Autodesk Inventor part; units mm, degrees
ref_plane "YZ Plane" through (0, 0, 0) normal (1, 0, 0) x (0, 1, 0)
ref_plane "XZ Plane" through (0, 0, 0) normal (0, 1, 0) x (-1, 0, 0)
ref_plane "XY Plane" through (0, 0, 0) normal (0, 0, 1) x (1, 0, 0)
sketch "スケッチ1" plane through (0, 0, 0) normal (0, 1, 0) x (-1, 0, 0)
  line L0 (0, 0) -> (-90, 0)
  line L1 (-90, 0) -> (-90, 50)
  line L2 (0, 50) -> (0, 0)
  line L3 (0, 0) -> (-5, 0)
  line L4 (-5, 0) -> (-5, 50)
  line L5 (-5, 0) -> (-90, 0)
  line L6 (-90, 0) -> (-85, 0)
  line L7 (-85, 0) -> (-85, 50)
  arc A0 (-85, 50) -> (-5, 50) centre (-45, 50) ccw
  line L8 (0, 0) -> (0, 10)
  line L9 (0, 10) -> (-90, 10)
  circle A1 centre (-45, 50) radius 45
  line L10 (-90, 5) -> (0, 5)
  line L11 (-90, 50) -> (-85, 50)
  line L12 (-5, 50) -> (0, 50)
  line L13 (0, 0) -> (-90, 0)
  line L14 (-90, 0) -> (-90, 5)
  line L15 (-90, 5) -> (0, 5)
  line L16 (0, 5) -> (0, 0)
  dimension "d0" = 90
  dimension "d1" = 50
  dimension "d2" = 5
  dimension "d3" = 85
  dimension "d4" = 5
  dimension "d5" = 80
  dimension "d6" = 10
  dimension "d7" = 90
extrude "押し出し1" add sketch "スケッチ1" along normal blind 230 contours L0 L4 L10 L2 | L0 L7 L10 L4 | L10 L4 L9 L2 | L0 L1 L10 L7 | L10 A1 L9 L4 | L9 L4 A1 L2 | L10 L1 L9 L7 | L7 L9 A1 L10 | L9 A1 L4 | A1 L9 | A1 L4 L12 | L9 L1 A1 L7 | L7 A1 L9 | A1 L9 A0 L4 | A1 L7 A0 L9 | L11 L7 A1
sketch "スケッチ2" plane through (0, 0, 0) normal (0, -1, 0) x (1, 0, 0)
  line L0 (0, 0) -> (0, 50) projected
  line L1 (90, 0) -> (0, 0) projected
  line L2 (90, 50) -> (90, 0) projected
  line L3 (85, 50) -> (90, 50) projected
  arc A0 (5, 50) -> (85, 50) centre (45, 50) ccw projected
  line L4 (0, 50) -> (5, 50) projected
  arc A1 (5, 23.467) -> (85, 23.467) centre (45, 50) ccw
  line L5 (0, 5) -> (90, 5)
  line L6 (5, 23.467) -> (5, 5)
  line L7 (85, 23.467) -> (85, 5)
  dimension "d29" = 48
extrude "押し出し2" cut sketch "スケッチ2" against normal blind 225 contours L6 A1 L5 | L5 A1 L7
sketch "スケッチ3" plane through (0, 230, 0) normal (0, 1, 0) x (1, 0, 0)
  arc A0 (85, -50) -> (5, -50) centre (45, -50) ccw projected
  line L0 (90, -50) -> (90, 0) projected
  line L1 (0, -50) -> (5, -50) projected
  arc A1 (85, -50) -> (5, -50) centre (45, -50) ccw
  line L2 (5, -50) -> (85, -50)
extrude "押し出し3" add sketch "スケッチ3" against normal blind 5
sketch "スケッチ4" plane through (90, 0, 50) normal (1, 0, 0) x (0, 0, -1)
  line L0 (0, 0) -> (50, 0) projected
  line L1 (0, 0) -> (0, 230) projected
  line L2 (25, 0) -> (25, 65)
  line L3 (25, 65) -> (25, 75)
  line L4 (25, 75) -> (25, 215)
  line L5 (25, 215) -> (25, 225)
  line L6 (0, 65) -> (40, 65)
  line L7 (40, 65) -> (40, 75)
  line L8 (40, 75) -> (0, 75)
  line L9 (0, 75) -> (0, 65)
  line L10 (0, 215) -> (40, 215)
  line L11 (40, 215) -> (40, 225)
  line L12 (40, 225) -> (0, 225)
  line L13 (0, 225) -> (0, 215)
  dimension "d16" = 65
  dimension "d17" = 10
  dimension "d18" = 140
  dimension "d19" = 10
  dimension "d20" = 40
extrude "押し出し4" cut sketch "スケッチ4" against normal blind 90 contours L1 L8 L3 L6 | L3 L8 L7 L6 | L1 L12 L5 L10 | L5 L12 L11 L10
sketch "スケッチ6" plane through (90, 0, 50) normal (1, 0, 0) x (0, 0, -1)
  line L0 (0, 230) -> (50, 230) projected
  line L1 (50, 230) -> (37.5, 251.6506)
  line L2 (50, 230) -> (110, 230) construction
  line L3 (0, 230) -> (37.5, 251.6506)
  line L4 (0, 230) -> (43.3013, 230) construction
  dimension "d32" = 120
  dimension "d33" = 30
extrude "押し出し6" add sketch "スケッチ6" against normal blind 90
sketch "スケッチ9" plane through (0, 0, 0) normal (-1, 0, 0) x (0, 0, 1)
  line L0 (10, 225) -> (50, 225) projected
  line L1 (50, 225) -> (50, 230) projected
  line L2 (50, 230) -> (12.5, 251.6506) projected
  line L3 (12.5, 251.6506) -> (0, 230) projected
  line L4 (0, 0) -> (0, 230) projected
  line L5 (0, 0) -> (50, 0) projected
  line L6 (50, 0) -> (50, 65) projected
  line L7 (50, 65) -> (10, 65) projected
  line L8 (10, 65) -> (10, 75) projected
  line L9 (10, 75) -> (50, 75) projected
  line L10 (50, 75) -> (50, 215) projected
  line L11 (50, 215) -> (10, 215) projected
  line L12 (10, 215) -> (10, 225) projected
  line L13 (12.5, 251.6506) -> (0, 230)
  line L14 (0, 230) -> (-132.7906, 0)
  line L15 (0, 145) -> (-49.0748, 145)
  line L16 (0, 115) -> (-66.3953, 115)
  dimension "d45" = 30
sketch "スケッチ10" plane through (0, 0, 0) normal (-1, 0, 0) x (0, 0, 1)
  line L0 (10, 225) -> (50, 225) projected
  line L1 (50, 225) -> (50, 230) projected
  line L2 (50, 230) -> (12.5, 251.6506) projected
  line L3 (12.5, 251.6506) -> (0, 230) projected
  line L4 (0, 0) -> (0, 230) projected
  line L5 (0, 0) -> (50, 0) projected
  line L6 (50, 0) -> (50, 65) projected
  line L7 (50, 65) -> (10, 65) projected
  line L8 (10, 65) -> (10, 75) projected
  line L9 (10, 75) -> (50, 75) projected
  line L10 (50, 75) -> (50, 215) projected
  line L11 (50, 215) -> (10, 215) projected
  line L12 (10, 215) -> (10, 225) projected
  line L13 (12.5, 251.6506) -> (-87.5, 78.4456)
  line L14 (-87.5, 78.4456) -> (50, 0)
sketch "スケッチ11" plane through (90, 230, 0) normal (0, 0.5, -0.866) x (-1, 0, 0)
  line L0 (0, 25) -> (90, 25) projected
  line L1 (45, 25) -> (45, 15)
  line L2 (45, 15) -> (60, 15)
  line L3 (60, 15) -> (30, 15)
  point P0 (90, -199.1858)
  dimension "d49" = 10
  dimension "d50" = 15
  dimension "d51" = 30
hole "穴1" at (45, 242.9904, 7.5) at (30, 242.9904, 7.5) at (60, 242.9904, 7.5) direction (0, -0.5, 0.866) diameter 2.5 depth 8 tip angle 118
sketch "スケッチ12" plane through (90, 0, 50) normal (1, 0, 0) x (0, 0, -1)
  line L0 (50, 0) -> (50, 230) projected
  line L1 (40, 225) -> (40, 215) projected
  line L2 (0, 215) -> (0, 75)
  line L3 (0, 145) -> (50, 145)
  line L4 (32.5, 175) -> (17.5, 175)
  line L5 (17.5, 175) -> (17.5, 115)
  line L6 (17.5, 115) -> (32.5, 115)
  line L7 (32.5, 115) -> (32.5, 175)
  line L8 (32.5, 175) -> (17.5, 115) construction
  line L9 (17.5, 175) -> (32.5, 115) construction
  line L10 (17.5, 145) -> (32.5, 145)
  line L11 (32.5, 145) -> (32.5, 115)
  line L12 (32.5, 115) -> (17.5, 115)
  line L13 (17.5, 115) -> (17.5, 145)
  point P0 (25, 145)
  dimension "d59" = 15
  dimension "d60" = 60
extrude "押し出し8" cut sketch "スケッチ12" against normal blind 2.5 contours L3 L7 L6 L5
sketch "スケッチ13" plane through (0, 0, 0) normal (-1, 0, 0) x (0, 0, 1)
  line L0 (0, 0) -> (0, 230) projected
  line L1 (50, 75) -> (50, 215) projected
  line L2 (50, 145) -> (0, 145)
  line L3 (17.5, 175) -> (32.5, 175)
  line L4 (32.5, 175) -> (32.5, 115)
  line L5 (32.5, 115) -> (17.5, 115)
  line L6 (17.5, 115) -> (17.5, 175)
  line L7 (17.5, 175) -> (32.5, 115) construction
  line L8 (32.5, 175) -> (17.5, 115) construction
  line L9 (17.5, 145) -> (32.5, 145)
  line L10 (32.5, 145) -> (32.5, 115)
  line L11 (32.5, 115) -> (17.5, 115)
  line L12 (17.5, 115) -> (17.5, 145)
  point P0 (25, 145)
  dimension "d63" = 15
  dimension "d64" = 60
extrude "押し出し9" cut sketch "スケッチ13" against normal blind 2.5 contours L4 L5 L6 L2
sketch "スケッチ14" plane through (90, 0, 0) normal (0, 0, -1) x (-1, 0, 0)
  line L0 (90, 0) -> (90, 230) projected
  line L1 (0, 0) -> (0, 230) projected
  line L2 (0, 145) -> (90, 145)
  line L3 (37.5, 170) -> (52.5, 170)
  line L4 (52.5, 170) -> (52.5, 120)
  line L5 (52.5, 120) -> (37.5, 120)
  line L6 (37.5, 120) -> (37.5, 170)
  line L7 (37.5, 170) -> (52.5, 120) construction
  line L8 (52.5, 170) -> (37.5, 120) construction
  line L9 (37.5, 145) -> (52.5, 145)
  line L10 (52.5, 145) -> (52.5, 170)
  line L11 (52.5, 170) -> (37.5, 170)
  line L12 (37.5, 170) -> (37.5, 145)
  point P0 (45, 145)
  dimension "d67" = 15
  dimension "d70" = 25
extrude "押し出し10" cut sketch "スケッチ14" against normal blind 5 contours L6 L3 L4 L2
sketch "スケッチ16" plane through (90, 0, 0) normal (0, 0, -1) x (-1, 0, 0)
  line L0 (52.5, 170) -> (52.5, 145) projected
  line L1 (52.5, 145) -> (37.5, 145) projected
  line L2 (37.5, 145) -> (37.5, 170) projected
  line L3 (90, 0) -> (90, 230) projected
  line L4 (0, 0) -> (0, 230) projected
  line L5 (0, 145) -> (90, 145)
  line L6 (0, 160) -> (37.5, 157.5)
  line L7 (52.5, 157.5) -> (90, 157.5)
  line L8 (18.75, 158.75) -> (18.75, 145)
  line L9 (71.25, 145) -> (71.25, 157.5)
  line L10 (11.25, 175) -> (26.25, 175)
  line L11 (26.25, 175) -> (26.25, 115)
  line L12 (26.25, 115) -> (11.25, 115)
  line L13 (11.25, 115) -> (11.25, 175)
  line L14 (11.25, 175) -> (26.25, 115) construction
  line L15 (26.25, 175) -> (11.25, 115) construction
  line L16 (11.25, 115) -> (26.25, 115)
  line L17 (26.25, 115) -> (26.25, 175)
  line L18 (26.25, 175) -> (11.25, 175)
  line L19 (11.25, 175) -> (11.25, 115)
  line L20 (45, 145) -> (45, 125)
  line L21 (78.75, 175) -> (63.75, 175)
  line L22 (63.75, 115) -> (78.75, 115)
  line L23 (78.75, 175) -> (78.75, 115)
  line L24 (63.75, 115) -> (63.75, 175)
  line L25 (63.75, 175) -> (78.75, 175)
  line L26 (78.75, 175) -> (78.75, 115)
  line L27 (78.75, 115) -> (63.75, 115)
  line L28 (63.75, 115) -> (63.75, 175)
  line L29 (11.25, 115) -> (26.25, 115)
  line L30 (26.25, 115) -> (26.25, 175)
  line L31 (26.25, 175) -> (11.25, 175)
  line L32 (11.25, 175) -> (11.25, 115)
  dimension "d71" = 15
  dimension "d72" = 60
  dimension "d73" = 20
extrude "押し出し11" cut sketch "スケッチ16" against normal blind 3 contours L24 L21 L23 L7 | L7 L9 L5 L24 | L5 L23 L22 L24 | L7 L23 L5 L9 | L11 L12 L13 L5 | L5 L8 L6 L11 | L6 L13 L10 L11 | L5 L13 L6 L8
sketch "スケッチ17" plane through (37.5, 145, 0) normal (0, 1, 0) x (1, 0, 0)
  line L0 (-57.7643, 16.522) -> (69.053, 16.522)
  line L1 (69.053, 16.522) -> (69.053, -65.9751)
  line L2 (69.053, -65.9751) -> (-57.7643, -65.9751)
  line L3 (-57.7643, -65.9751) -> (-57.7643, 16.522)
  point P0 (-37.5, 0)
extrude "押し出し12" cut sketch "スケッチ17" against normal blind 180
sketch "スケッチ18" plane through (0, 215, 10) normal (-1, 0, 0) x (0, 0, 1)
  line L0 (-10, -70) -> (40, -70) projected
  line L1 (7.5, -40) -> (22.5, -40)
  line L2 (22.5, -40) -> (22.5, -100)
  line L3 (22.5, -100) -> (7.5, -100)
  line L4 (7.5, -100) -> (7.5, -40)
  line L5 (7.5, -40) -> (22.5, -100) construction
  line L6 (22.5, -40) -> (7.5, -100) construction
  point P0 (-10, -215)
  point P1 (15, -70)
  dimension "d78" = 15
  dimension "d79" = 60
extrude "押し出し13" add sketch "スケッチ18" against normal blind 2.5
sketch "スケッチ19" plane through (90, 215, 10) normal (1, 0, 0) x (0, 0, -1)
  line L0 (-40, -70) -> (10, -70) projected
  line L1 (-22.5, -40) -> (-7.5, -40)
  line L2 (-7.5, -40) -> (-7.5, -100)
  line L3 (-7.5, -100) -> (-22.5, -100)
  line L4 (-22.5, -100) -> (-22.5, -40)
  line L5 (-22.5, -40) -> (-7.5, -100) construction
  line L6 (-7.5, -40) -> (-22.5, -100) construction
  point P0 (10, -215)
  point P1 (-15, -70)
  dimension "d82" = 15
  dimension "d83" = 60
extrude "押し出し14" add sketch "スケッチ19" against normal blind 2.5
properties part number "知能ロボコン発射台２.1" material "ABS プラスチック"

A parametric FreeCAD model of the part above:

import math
import FreeCAD as App
import Part
import Sketcher

V = App.Vector
Q = App.Units.Quantity


def add_polygon(sketch, points):
    """Adds a closed chain of lines whose ends are joined by coincident constraints."""
    first, n = sketch.GeometryCount, len(points)
    for a, b in zip(points, points[1:] + points[:1]):
        sketch.addGeometry(Part.LineSegment(App.Vector(*a, 0), App.Vector(*b, 0)), False)
    for i in range(n):
        sketch.addConstraint(Sketcher.Constraint("Coincident", first + i, 2, first + (i + 1) % n, 1))

doc = App.newDocument("Part")
params = doc.addObject("Spreadsheet::Sheet", "Params")
for row, (alias, value) in enumerate([
    ("sketch1_radius", "40 mm"),
    ("sketch1_width", "5 mm"),
    ("sketch1_height", "50 mm"),
    ("pad1_length", "230 mm"),
    ("sketch2_radius", "48 mm"),
    ("pocket1_length", "225 mm"),
    ("sketch3_radius", "40 mm"),
    ("pad2_length", "5 mm"),
    ("sketch4_width", "10 mm"),
    ("sketch4_height", "40 mm"),
    ("pocket2_length", "90 mm"),
    ("sketch5_height", "50 mm"),
    ("pad3_length", "90 mm"),
    ("sketch6_diameter", "2.5 mm"),
    ("hole_diameter", "2.5 mm"),
    ("hole_depth", "8 mm"),
    ("sketch7_height", "15 mm"),
    ("sketch7_width", "30 mm"),
    ("pocket3_length", "2.5 mm"),
    ("sketch8_height", "15 mm"),
    ("sketch8_width", "30 mm"),
    ("pocket4_length", "2.5 mm"),
    ("sketch9_width", "15 mm"),
    ("sketch9_height", "25 mm"),
    ("pocket5_length", "5 mm"),
    ("sketch10_width", "15 mm"),
    ("sketch10_height", "60 mm"),
    ("pocket6_length", "3 mm"),
    ("pocket7_length", "180 mm"),
    ("sketch12_width", "60 mm"),
    ("sketch12_height", "15 mm"),
    ("pad4_length", "2.5 mm"),
    ("sketch13_width", "60 mm"),
    ("sketch13_height", "15 mm"),
    ("pad5_length", "2.5 mm"),
], start=1):
    params.set(f"A{row}", alias)
    params.set(f"B{row}", "=" + value)
    params.setAlias(f"B{row}", alias)

body = doc.addObject("PartDesign::Body", "Body")

# Sketch on XZ plane
sketch1 = doc.addObject("Sketcher::SketchObject", "Sketch")
body.addObject(sketch1)
sketch1.AttachmentSupport = (doc.XZ_Plane, [""])
sketch1.MapMode = "FlatFace"
sketch1.addGeometry([
    Part.LineSegment(V(0, 0, 0), V(0, 50, 0)),  # 0
    Part.LineSegment(V(0, 50, 0), V(5, 50, 0)),  # 1
    Part.ArcOfCircle(Part.Circle(V(45, 50, 0), V(0, 0, 1), 40), math.radians(180), math.radians(360)),  # 2
    Part.LineSegment(V(85, 50, 0), V(90, 50, 0)),  # 3
    Part.LineSegment(V(90, 50, 0), V(90, 0, 0)),  # 4
    Part.LineSegment(V(90, 0, 0), V(0, 0, 0)),  # 5
], False)
sketch1.addConstraint([
    Sketcher.Constraint("Coincident", 0, 2, 1, 1),
    Sketcher.Constraint("Coincident", 1, 2, 2, 1),
    Sketcher.Constraint("Coincident", 2, 2, 3, 1),
    Sketcher.Constraint("Coincident", 3, 2, 4, 1),
    Sketcher.Constraint("Coincident", 4, 2, 5, 1),
    Sketcher.Constraint("Coincident", 5, 2, 0, 1),
    Sketcher.Constraint("Vertical", 0),
    Sketcher.Constraint("Horizontal", 1),
    Sketcher.Constraint("Horizontal", 3),
    Sketcher.Constraint("Vertical", 4),
    Sketcher.Constraint("Horizontal", 5),
    Sketcher.Constraint("Coincident", 5, 2, -1, 1),
    Sketcher.Constraint("Horizontal", 2, 3, 0, 2),
    Sketcher.Constraint("Horizontal", 1, 2, 2, 2),
    Sketcher.Constraint("Equal", 1, 3),
    Sketcher.Constraint("Radius", 2, Q("40 mm")),
    Sketcher.Constraint("DistanceX", 1, 1, 1, 2, Q("5 mm")),
    Sketcher.Constraint("DistanceY", 0, 1, 0, 2, Q("50 mm")),
])
sketch1.setExpression("Constraints[15]", "Params.sketch1_radius")
sketch1.setExpression("Constraints[16]", "Params.sketch1_width")
sketch1.setExpression("Constraints[17]", "Params.sketch1_height")
pad1 = doc.addObject("PartDesign::Pad", "Pad")
body.addObject(pad1)
pad1.Profile = sketch1
pad1.setExpression("Length", "Params.pad1_length")
pad1.Reversed = True

# Sketch on XZ plane
sketch2 = doc.addObject("Sketcher::SketchObject", "Sketch001")
body.addObject(sketch2)
sketch2.AttachmentSupport = (doc.XZ_Plane, [""])
sketch2.MapMode = "FlatFace"
sketch2.addGeometry([
    Part.LineSegment(V(5, 23, 0), V(5, 5, 0)),  # 0
    Part.LineSegment(V(5, 5, 0), V(28, 5, 0)),  # 1
    Part.ArcOfCircle(Part.Circle(V(45, 50, 0), V(0, 0, 1), 48), math.radians(-146), math.radians(-110)),  # 2
    Part.LineSegment(V(62, 5, 0), V(85, 5, 0)),  # 3
    Part.LineSegment(V(85, 5, 0), V(85, 23, 0)),  # 4
    Part.ArcOfCircle(Part.Circle(V(45, 50, 0), V(0, 0, 1), 48), math.radians(-70), math.radians(-34)),  # 5
], False)
sketch2.addConstraint([
    Sketcher.Constraint("Coincident", 0, 2, 1, 1),
    Sketcher.Constraint("Coincident", 1, 2, 2, 2),
    Sketcher.Constraint("Coincident", 2, 1, 0, 1),
    Sketcher.Constraint("Coincident", 3, 2, 4, 1),
    Sketcher.Constraint("Coincident", 4, 2, 5, 2),
    Sketcher.Constraint("Coincident", 5, 1, 3, 1),
    Sketcher.Constraint("Vertical", 0),
    Sketcher.Constraint("Horizontal", 1),
    Sketcher.Constraint("Horizontal", 3),
    Sketcher.Constraint("Vertical", 4),
    Sketcher.Constraint("Coincident", 5, 3, 2, 3),
    Sketcher.Constraint("Equal", 2, 5),
    Sketcher.Constraint("Horizontal", 1, 2, 3, 2),
    Sketcher.Constraint("Horizontal", 2, 1, 4, 2),
    Sketcher.Constraint("Radius", 2, Q("48 mm")),
    Sketcher.Constraint("DistanceX", -1, 1, 2, 3, Q("45 mm")),
    Sketcher.Constraint("DistanceY", -1, 1, 2, 3, Q("50 mm")),
    Sketcher.Constraint("DistanceX", -1, 1, 0, 2, Q("5 mm")),
    Sketcher.Constraint("DistanceY", -1, 1, 0, 2, Q("5 mm")),
])
sketch2.setExpression("Constraints[14]", "Params.sketch2_radius")
pocket1 = doc.addObject("PartDesign::Pocket", "Pocket")
body.addObject(pocket1)
pocket1.Profile = sketch2
pocket1.setExpression("Length", "Params.pocket1_length")

# Sketch on XZ plane
sketch3 = doc.addObject("Sketcher::SketchObject", "Sketch002")
body.addObject(sketch3)
sketch3.AttachmentSupport = (doc.XZ_Plane, [""])
sketch3.MapMode = "FlatFace"
sketch3.AttachmentOffset = App.Placement(V(0, 0, -230), App.Rotation())
sketch3.addGeometry([
    Part.LineSegment(V(5, 50, 0), V(85, 50, 0)),
    Part.ArcOfCircle(Part.Circle(V(45, 50, 0), V(0, 0, 1), 40), math.radians(180), math.radians(360)),
], False)
sketch3.addConstraint([
    Sketcher.Constraint("Coincident", 0, 1, 1, 1),
    Sketcher.Constraint("Coincident", 1, 2, 0, 2),
    Sketcher.Constraint("Horizontal", 0),
    Sketcher.Constraint("Horizontal", 1, 3, 0, 1),
    Sketcher.Constraint("Radius", 1, Q("40 mm")),
    Sketcher.Constraint("DistanceX", -1, 1, 1, 3, Q("45 mm")),
    Sketcher.Constraint("DistanceY", -1, 1, 1, 3, Q("50 mm")),
])
sketch3.setExpression("Constraints[4]", "Params.sketch3_radius")
pad2 = doc.addObject("PartDesign::Pad", "Pad001")
body.addObject(pad2)
pad2.Profile = sketch3
pad2.setExpression("Length", "Params.pad2_length")

# Sketch on YZ plane
sketch4 = doc.addObject("Sketcher::SketchObject", "Sketch003")
body.addObject(sketch4)
sketch4.AttachmentSupport = (doc.YZ_Plane, [""])
sketch4.MapMode = "FlatFace"
sketch4.AttachmentOffset = App.Placement(V(0, 0, 90), App.Rotation())
add_polygon(sketch4, [(75, 50), (65, 50), (65, 10), (75, 10)])  # lines 0-3
add_polygon(sketch4, [(225, 50), (215, 50), (215, 10), (225, 10)])  # lines 4-7
sketch4.addConstraint([
    Sketcher.Constraint("Horizontal", 0),
    Sketcher.Constraint("Vertical", 1),
    Sketcher.Constraint("Horizontal", 2),
    Sketcher.Constraint("Vertical", 3),
    Sketcher.Constraint("Horizontal", 4),
    Sketcher.Constraint("Vertical", 5),
    Sketcher.Constraint("Horizontal", 6),
    Sketcher.Constraint("Vertical", 7),
    Sketcher.Constraint("Horizontal", 3, 2, 4, 2),
    Sketcher.Constraint("Horizontal", 2, 2, 5, 2),
    Sketcher.Constraint("Equal", 2, 4),
    Sketcher.Constraint("DistanceX", 0, 2, 0, 1, Q("10 mm")),
    Sketcher.Constraint("DistanceY", 1, 2, 1, 1, Q("40 mm")),
    Sketcher.Constraint("DistanceX", -1, 1, 0, 2, Q("65 mm")),
    Sketcher.Constraint("DistanceY", -1, 1, 1, 2, Q("10 mm")),
    Sketcher.Constraint("DistanceX", 3, 2, 4, 2, Q("140 mm")),
])
sketch4.setExpression("Constraints[19]", "Params.sketch4_width")
sketch4.setExpression("Constraints[20]", "Params.sketch4_height")
pocket2 = doc.addObject("PartDesign::Pocket", "Pocket001")
body.addObject(pocket2)
pocket2.Profile = sketch4
pocket2.setExpression("Length", "Params.pocket2_length")

# Sketch on YZ plane
sketch5 = doc.addObject("Sketcher::SketchObject", "Sketch004")
body.addObject(sketch5)
sketch5.AttachmentSupport = (doc.YZ_Plane, [""])
sketch5.MapMode = "FlatFace"
sketch5.AttachmentOffset = App.Placement(V(0, 0, 90), App.Rotation())
add_polygon(sketch5, [(252, 12), (230, 50), (230, 0)])  # lines 0-2
sketch5.addConstraint([
    Sketcher.Constraint("Vertical", 1),
    Sketcher.Constraint("PointOnObject", 1, 2, -1),
    Sketcher.Constraint("Perpendicular", 0, 2),
    Sketcher.Constraint("Angle", 0, Q("120 deg")),
    Sketcher.Constraint("DistanceY", 1, 2, 1, 1, Q("50 mm")),
    Sketcher.Constraint("DistanceX", -1, 1, 0, 2, Q("230 mm")),
])
sketch5.setExpression("Constraints[7]", "Params.sketch5_height")
pad3 = doc.addObject("PartDesign::Pad", "Pad002")
body.addObject(pad3)
pad3.Profile = sketch5
pad3.setExpression("Length", "Params.pad3_length")
pad3.Reversed = True

# Sketch on an angled plane
sketch6 = doc.addObject("Sketcher::SketchObject", "Sketch005")
body.addObject(sketch6)
sketch6.Placement = App.Placement(V(0, 57.500005, -99.59293), App.Rotation(V(0, 0.866025404, 0.5), V(1, 0, 0), V(0, 0.5, -0.866025404), "ZXY"))
sketch6.addGeometry([
    Part.Circle(V(214.2, 45, 0), V(0, 0, 1), 1.2),
    Part.Circle(V(214.2, 30, 0), V(0, 0, 1), 1.2),
    Part.Circle(V(214.2, 60, 0), V(0, 0, 1), 1.2),
], False)
sketch6.addConstraint([
    Sketcher.Constraint("Equal", 0, 1),
    Sketcher.Constraint("Equal", 1, 2),
    Sketcher.Constraint("Vertical", 0, 3, 1, 3),
    Sketcher.Constraint("Vertical", 1, 3, 2, 3),
    Sketcher.Constraint("Diameter", 0, Q("2.5 mm")),
    Sketcher.Constraint("DistanceY", -1, 1, 0, 3, Q("45 mm")),
    Sketcher.Constraint("DistanceY", -1, 1, 1, 3, Q("30 mm")),
    Sketcher.Constraint("DistanceY", -1, 1, 2, 3, Q("60 mm")),
    Sketcher.Constraint("DistanceX", -1, 1, 0, 3, Q("214.1859 mm")),
])
sketch6.setExpression("Constraints[4]", "Params.sketch6_diameter")
doc.recompute()
hole = doc.addObject("PartDesign::Hole", "Hole")
body.addObject(hole)
hole.Profile = sketch6
hole.ThreadType = "None"
hole.setExpression("Diameter", "Params.hole_diameter")
hole.DepthType = "Dimension"
hole.setExpression("Depth", "Params.hole_depth")
hole.DrillPoint = "Angled"
hole.DrillPointAngle = 118

# Sketch on YZ plane
sketch7 = doc.addObject("Sketcher::SketchObject", "Sketch006")
body.addObject(sketch7)
sketch7.AttachmentSupport = (doc.YZ_Plane, [""])
sketch7.MapMode = "FlatFace"
sketch7.AttachmentOffset = App.Placement(V(0, 0, 90), App.Rotation())
add_polygon(sketch7, [(145, 18), (145, 32), (115, 32), (115, 18)])  # lines 0-3
sketch7.addConstraint([
    Sketcher.Constraint("Vertical", 0),
    Sketcher.Constraint("Horizontal", 1),
    Sketcher.Constraint("Vertical", 2),
    Sketcher.Constraint("Horizontal", 3),
    Sketcher.Constraint("DistanceY", 0, 1, 0, 2, Q("15 mm")),
    Sketcher.Constraint("DistanceX", 1, 2, 1, 1, Q("30 mm")),
    Sketcher.Constraint("DistanceX", -1, 1, 0, 2, Q("145 mm")),
    Sketcher.Constraint("DistanceY", -1, 1, 0, 2, Q("32.5 mm")),
])
sketch7.setExpression("Constraints[8]", "Params.sketch7_height")
sketch7.setExpression("Constraints[9]", "Params.sketch7_width")
pocket3 = doc.addObject("PartDesign::Pocket", "Pocket002")
body.addObject(pocket3)
pocket3.Profile = sketch7
pocket3.setExpression("Length", "Params.pocket3_length")

# Sketch on YZ plane
sketch8 = doc.addObject("Sketcher::SketchObject", "Sketch007")
body.addObject(sketch8)
sketch8.AttachmentSupport = (doc.YZ_Plane, [""])
sketch8.MapMode = "FlatFace"
add_polygon(sketch8, [(115, 32), (145, 32), (145, 18), (115, 18)])  # lines 0-3
sketch8.addConstraint([
    Sketcher.Constraint("Horizontal", 0),
    Sketcher.Constraint("Vertical", 1),
    Sketcher.Constraint("Horizontal", 2),
    Sketcher.Constraint("Vertical", 3),
    Sketcher.Constraint("DistanceY", 1, 2, 1, 1, Q("15 mm")),
    Sketcher.Constraint("DistanceX", 0, 1, 0, 2, Q("30 mm")),
    Sketcher.Constraint("DistanceX", -1, 1, 0, 2, Q("145 mm")),
    Sketcher.Constraint("DistanceY", -1, 1, 0, 2, Q("32.5 mm")),
])
sketch8.setExpression("Constraints[8]", "Params.sketch8_height")
sketch8.setExpression("Constraints[9]", "Params.sketch8_width")
pocket4 = doc.addObject("PartDesign::Pocket", "Pocket003")
body.addObject(pocket4)
pocket4.Profile = sketch8
pocket4.setExpression("Length", "Params.pocket4_length")
pocket4.Reversed = True

# Sketch on XY plane
sketch9 = doc.addObject("Sketcher::SketchObject", "Sketch008")
body.addObject(sketch9)
sketch9.AttachmentSupport = (doc.XY_Plane, [""])
sketch9.MapMode = "FlatFace"
add_polygon(sketch9, [(52, 170), (52, 145), (38, 145), (38, 170)])  # lines 0-3
sketch9.addConstraint([
    Sketcher.Constraint("Vertical", 0),
    Sketcher.Constraint("Horizontal", 1),
    Sketcher.Constraint("Vertical", 2),
    Sketcher.Constraint("Horizontal", 3),
    Sketcher.Constraint("DistanceX", 1, 2, 1, 1, Q("15 mm")),
    Sketcher.Constraint("DistanceY", 0, 2, 0, 1, Q("25 mm")),
    Sketcher.Constraint("DistanceY", -1, 1, 0, 2, Q("145 mm")),
    Sketcher.Constraint("DistanceX", -1, 1, 0, 2, Q("52.5 mm")),
])
sketch9.setExpression("Constraints[8]", "Params.sketch9_width")
sketch9.setExpression("Constraints[9]", "Params.sketch9_height")
pocket5 = doc.addObject("PartDesign::Pocket", "Pocket004")
body.addObject(pocket5)
pocket5.Profile = sketch9
pocket5.setExpression("Length", "Params.pocket5_length")
pocket5.Reversed = True

# Sketch on XY plane
sketch10 = doc.addObject("Sketcher::SketchObject", "Sketch009")
body.addObject(sketch10)
sketch10.AttachmentSupport = (doc.XY_Plane, [""])
sketch10.MapMode = "FlatFace"
add_polygon(sketch10, [(26, 175), (26, 115), (11, 115), (11, 175)])  # lines 0-3
add_polygon(sketch10, [(64, 115), (64, 175), (79, 175), (79, 115)])  # lines 4-7
sketch10.addConstraint([
    Sketcher.Constraint("Vertical", 0),
    Sketcher.Constraint("Horizontal", 1),
    Sketcher.Constraint("Vertical", 2),
    Sketcher.Constraint("Horizontal", 3),
    Sketcher.Constraint("Vertical", 4),
    Sketcher.Constraint("Horizontal", 5),
    Sketcher.Constraint("Vertical", 6),
    Sketcher.Constraint("Horizontal", 7),
    Sketcher.Constraint("Horizontal", 3, 2, 4, 2),
    Sketcher.Constraint("Horizontal", 1, 2, 6, 2),
    Sketcher.Constraint("Equal", 3, 5),
    Sketcher.Constraint("DistanceX", 1, 2, 1, 1, Q("15 mm")),
    Sketcher.Constraint("DistanceY", 0, 2, 0, 1, Q("60 mm")),
    Sketcher.Constraint("DistanceY", -1, 1, 0, 2, Q("115 mm")),
    Sketcher.Constraint("DistanceX", 3, 2, 4, 2, Q("37.5 mm")),
    Sketcher.Constraint("DistanceX", -1, 1, 0, 2, Q("26.25 mm")),
])
sketch10.setExpression("Constraints[19]", "Params.sketch10_width")
sketch10.setExpression("Constraints[20]", "Params.sketch10_height")
pocket6 = doc.addObject("PartDesign::Pocket", "Pocket005")
body.addObject(pocket6)
pocket6.Profile = sketch10
pocket6.setExpression("Length", "Params.pocket6_length")
pocket6.Reversed = True

# Sketch on XZ plane
sketch11 = doc.addObject("Sketcher::SketchObject", "Sketch010")
body.addObject(sketch11)
sketch11.AttachmentSupport = (doc.XZ_Plane, [""])
sketch11.MapMode = "FlatFace"
sketch11.AttachmentOffset = App.Placement(V(0, 0, -145), App.Rotation())
add_polygon(sketch11, [(107, -17), (-20, -17), (-20, 66), (107, 66)])  # lines 0-3
sketch11.addConstraint([
    Sketcher.Constraint("Horizontal", 0),
    Sketcher.Constraint("Vertical", 1),
    Sketcher.Constraint("Horizontal", 2),
    Sketcher.Constraint("Vertical", 3),
    Sketcher.Constraint("DistanceY", 1, 1, 1, 2, Q("82.497 mm")),
    Sketcher.Constraint("DistanceX", 0, 2, 0, 1, Q("126.8173 mm")),
    Sketcher.Constraint("DistanceY", 0, 2, -1, 1, Q("16.522 mm")),
    Sketcher.Constraint("DistanceX", -1, 1, 2, 2, Q("106.553 mm")),
])
pocket7 = doc.addObject("PartDesign::Pocket", "Pocket006")
body.addObject(pocket7)
pocket7.Profile = sketch11
pocket7.setExpression("Length", "Params.pocket7_length")
pocket7.Reversed = True

# Sketch on YZ plane
sketch12 = doc.addObject("Sketcher::SketchObject", "Sketch011")
body.addObject(sketch12)
sketch12.AttachmentSupport = (doc.YZ_Plane, [""])
sketch12.MapMode = "FlatFace"
add_polygon(sketch12, [(175, 18), (115, 18), (115, 32), (175, 32)])  # lines 0-3
sketch12.addConstraint([
    Sketcher.Constraint("Horizontal", 0),
    Sketcher.Constraint("Vertical", 1),
    Sketcher.Constraint("Horizontal", 2),
    Sketcher.Constraint("Vertical", 3),
    Sketcher.Constraint("DistanceX", 0, 2, 0, 1, Q("60 mm")),
    Sketcher.Constraint("DistanceY", 1, 1, 1, 2, Q("15 mm")),
    Sketcher.Constraint("DistanceX", -1, 1, 0, 2, Q("115 mm")),
    Sketcher.Constraint("DistanceY", -1, 1, 0, 2, Q("17.5 mm")),
])
sketch12.setExpression("Constraints[8]", "Params.sketch12_width")
sketch12.setExpression("Constraints[9]", "Params.sketch12_height")
pad4 = doc.addObject("PartDesign::Pad", "Pad003")
body.addObject(pad4)
pad4.Profile = sketch12
pad4.setExpression("Length", "Params.pad4_length")

# Sketch on YZ plane
sketch13 = doc.addObject("Sketcher::SketchObject", "Sketch012")
body.addObject(sketch13)
sketch13.AttachmentSupport = (doc.YZ_Plane, [""])
sketch13.MapMode = "FlatFace"
sketch13.AttachmentOffset = App.Placement(V(0, 0, 90), App.Rotation())
add_polygon(sketch13, [(175, 32), (115, 32), (115, 18), (175, 18)])  # lines 0-3
sketch13.addConstraint([
    Sketcher.Constraint("Horizontal", 0),
    Sketcher.Constraint("Vertical", 1),
    Sketcher.Constraint("Horizontal", 2),
    Sketcher.Constraint("Vertical", 3),
    Sketcher.Constraint("DistanceX", 0, 2, 0, 1, Q("60 mm")),
    Sketcher.Constraint("DistanceY", 1, 2, 1, 1, Q("15 mm")),
    Sketcher.Constraint("DistanceX", -1, 1, 0, 2, Q("115 mm")),
    Sketcher.Constraint("DistanceY", -1, 1, 0, 2, Q("32.5 mm")),
])
sketch13.setExpression("Constraints[8]", "Params.sketch13_width")
sketch13.setExpression("Constraints[9]", "Params.sketch13_height")
pad5 = doc.addObject("PartDesign::Pad", "Pad004")
body.addObject(pad5)
pad5.Profile = sketch13
pad5.setExpression("Length", "Params.pad5_length")
pad5.Reversed = True

doc.recompute()
